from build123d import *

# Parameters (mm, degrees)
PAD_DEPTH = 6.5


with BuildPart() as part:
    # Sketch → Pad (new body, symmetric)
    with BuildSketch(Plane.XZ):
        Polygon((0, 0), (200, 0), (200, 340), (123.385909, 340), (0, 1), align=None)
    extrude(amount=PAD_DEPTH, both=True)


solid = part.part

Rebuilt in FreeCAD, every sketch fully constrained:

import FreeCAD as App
import Part
import Sketcher
Q = App.Units.Quantity

doc = App.newDocument("Part")
params = doc.addObject("Spreadsheet::Sheet", "Params")
for row, (alias, value) in enumerate([
    ("sketch1_width", "200 mm"),
    ("sketch1_height", "340 mm"),
    ("sketch1_height2", "1 mm"),
    ("pad1_length", "13 mm"),
], start=1):
    params.set(f"A{row}", alias)
    params.set(f"B{row}", "=" + value)
    params.setAlias(f"B{row}", alias)

body = doc.addObject("PartDesign::Body", "Body")

# Sketch on XZ plane
sketch1 = doc.addObject("Sketcher::SketchObject", "Sketch")
body.addObject(sketch1)
sketch1.AttachmentSupport = (doc.XZ_Plane, [""])
sketch1.MapMode = "FlatFace"
sketch1.addGeometry([
    Part.LineSegment(App.Vector(0, 0, 0), App.Vector(200, 0, 0)),  # 0
    Part.LineSegment(App.Vector(200, 0, 0), App.Vector(200, 340, 0)),  # 1
    Part.LineSegment(App.Vector(200, 340, 0), App.Vector(123.385909, 340, 0)),  # 2
    Part.LineSegment(App.Vector(123.385909, 340, 0), App.Vector(0, 1, 0)),  # 3
    Part.LineSegment(App.Vector(0, 1, 0), App.Vector(0, 0, 0)),  # 4
], False)
sketch1.addConstraint([
    Sketcher.Constraint("Coincident", 0, 2, 1, 1),
    Sketcher.Constraint("Coincident", 1, 2, 2, 1),
    Sketcher.Constraint("Coincident", 2, 2, 3, 1),
    Sketcher.Constraint("Coincident", 3, 2, 4, 1),
    Sketcher.Constraint("Coincident", 4, 2, 0, 1),
    Sketcher.Constraint("Horizontal", 0),
    Sketcher.Constraint("Vertical", 1),
    Sketcher.Constraint("Horizontal", 2),
    Sketcher.Constraint("Vertical", 4),
    Sketcher.Constraint("Coincident", 4, 2, -1, 1),
    Sketcher.Constraint("DistanceX", 0, 1, 0, 2, 200.0),
    Sketcher.Constraint("DistanceY", 1, 1, 1, 2, 340.0),
    Sketcher.Constraint("DistanceY", 4, 2, 4, 1, 1.0),
    Sketcher.Constraint("Angle", 3, Q("-110 deg")),
])
sketch1.setExpression("Constraints[10]", "Params.sketch1_width")
sketch1.setExpression("Constraints[11]", "Params.sketch1_height")
sketch1.setExpression("Constraints[12]", "Params.sketch1_height2")
pad1 = doc.addObject("PartDesign::Pad", "Pad")
body.addObject(pad1)
pad1.Profile = sketch1
pad1.setExpression("Length", "Params.pad1_length")
pad1.Midplane = True

doc.recompute()
